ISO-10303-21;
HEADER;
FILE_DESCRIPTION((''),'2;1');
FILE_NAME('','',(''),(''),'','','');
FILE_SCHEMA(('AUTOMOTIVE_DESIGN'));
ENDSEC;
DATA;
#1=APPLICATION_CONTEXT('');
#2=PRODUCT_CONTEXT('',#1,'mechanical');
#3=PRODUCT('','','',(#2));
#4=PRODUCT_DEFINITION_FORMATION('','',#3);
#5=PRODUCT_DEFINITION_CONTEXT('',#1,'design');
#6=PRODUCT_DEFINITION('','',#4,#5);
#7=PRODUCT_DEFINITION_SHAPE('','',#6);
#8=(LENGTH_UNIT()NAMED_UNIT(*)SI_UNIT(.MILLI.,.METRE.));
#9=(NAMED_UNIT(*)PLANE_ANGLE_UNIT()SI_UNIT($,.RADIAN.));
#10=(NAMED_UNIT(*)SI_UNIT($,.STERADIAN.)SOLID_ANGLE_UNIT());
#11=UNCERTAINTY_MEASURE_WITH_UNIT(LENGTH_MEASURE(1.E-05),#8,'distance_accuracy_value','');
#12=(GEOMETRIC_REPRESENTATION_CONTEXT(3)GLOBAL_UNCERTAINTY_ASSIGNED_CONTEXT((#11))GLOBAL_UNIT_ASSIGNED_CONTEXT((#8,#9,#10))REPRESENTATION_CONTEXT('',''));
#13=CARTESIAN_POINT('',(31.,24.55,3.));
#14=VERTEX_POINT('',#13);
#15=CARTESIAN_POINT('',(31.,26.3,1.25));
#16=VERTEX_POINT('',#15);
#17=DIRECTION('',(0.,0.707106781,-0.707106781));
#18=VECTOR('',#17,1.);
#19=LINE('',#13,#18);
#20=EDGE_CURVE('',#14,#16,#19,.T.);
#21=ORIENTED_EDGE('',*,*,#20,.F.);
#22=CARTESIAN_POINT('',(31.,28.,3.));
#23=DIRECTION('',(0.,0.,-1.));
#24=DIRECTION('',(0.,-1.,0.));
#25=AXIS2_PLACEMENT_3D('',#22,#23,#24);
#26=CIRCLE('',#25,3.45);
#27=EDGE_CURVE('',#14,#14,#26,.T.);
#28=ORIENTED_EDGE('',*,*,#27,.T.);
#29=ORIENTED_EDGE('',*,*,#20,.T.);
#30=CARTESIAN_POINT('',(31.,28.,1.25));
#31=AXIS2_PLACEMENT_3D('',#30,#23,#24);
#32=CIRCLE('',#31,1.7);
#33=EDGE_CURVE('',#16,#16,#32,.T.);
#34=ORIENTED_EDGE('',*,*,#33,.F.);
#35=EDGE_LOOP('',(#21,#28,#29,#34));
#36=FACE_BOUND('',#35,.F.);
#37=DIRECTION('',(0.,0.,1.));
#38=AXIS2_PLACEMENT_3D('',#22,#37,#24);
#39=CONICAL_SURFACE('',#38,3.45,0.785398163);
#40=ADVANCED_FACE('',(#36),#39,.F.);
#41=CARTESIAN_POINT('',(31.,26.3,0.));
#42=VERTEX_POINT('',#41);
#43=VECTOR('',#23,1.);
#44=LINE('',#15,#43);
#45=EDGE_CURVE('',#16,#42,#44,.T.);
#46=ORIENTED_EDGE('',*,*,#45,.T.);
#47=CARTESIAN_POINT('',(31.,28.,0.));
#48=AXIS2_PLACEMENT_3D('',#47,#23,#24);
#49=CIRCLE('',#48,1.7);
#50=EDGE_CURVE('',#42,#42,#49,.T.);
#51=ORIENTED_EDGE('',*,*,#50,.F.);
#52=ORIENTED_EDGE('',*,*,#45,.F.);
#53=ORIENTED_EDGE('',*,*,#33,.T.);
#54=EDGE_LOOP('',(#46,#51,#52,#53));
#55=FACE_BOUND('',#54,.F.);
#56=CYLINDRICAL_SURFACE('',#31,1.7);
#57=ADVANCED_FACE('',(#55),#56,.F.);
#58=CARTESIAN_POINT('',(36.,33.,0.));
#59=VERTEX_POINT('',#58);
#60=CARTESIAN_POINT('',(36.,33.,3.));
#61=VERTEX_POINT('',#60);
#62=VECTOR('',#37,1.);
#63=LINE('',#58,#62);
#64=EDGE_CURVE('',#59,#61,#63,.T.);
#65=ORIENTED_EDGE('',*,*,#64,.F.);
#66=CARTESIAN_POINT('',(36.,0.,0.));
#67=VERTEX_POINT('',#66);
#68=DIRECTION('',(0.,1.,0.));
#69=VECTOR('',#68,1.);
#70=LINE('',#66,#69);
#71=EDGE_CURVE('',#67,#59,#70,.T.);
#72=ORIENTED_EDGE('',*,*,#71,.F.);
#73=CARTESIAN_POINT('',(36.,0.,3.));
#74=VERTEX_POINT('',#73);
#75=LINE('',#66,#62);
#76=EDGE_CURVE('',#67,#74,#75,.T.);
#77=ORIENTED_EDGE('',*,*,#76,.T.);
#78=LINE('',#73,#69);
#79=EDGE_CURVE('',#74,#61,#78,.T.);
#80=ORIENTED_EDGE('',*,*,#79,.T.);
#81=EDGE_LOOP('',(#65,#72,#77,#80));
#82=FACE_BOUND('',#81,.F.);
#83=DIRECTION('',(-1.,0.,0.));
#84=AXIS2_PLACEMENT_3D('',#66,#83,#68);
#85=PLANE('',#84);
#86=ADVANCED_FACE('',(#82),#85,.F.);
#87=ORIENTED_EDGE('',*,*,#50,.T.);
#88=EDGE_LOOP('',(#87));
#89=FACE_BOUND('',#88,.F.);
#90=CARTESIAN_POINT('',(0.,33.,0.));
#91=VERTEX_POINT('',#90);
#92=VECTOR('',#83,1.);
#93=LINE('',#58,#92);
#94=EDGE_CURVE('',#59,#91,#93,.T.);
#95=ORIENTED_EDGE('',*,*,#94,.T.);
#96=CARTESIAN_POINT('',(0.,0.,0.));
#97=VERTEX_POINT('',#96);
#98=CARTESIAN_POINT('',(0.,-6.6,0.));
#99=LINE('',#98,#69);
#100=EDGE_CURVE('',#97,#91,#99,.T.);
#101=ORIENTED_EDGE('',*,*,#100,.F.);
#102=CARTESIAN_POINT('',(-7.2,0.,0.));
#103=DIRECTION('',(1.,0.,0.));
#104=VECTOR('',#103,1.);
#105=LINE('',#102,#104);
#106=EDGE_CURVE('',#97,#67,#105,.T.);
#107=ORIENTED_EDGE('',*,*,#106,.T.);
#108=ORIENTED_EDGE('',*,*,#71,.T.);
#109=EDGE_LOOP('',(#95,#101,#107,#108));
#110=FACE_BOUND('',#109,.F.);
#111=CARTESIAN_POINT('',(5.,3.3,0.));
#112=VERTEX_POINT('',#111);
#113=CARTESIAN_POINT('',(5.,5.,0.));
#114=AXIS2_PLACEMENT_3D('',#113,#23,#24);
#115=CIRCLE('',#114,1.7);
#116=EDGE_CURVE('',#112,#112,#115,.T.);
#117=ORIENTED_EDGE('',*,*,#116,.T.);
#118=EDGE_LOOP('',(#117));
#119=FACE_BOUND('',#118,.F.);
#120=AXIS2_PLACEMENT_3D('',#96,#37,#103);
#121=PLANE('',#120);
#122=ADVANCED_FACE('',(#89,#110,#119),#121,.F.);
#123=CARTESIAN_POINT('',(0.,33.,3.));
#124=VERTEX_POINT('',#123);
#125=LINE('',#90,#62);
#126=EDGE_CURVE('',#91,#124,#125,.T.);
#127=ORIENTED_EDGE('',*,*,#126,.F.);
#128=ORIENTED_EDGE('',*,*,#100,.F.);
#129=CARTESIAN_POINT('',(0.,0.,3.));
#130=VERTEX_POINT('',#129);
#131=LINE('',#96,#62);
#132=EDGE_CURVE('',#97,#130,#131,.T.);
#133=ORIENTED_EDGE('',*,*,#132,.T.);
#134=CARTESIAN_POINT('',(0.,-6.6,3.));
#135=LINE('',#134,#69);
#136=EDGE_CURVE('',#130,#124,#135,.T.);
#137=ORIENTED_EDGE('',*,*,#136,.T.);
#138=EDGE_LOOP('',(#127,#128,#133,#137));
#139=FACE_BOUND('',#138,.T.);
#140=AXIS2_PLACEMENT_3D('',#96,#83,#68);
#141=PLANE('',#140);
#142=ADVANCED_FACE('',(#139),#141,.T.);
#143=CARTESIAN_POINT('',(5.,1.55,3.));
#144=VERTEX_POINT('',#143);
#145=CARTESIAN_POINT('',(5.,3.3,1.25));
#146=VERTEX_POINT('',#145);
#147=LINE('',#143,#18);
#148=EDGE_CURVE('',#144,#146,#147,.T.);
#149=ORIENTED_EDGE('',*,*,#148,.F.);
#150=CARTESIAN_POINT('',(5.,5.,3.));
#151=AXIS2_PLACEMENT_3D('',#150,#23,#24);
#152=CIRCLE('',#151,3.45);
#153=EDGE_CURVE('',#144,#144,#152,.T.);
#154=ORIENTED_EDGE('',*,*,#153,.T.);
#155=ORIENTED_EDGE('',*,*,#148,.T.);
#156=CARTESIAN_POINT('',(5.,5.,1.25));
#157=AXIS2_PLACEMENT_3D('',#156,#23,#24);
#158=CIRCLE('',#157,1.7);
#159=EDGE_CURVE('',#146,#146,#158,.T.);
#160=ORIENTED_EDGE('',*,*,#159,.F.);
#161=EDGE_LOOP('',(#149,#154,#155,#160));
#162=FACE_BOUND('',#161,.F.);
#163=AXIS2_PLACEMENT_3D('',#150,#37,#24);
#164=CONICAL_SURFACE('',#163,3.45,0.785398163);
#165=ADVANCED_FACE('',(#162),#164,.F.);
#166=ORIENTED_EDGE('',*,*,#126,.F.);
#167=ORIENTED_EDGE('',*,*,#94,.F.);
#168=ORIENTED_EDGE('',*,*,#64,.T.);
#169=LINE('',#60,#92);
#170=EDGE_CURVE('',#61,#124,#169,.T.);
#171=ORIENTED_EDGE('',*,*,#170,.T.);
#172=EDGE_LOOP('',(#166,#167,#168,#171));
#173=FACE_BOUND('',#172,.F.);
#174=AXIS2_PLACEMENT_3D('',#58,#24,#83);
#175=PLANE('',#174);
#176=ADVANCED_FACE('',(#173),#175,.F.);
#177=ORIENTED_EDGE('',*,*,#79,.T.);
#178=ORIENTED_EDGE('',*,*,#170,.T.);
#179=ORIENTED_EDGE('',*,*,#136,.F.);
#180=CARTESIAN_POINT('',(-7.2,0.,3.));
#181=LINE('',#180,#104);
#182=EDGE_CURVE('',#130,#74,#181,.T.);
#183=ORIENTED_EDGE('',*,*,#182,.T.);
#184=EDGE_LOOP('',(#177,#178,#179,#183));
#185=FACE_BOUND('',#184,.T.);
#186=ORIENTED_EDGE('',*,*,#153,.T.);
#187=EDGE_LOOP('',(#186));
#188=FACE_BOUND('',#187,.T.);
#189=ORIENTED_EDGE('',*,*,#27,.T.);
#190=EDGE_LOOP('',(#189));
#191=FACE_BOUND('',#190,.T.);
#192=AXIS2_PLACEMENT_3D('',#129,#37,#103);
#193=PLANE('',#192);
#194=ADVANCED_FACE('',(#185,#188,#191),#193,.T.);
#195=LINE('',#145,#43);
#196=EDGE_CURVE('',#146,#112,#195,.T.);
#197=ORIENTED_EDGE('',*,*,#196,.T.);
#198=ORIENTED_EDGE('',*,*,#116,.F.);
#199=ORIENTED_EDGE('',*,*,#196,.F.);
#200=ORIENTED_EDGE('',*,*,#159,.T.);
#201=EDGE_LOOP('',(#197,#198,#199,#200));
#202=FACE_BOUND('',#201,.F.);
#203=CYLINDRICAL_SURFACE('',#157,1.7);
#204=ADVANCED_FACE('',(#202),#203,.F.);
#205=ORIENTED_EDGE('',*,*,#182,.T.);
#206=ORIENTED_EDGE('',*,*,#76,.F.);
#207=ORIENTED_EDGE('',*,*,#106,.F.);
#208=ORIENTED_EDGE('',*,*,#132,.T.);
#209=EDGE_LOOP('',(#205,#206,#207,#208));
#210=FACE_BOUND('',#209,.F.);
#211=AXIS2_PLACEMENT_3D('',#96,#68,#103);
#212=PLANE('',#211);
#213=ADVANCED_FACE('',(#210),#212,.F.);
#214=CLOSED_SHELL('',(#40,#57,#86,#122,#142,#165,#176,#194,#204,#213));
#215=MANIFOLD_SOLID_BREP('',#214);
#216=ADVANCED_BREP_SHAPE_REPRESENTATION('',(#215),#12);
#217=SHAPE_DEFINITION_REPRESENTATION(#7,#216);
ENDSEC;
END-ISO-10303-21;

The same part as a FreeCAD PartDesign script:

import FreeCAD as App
import Part
import Sketcher

doc = App.newDocument("Part")
body = doc.addObject("PartDesign::Body", "Body")

# Sketch on XY plane
sketch1 = body.newObject("Sketcher::SketchObject", "Sketch")
sketch1.AttachmentSupport = (doc.getObject("XY_Plane"), [""])
sketch1.MapMode = "FlatFace"
sketch1.addGeometry([
    Part.LineSegment(App.Vector(0, 33, 0), App.Vector(0, 0, 0)),
    Part.LineSegment(App.Vector(0, 0, 0), App.Vector(36, 0, 0)),
    Part.LineSegment(App.Vector(36, 0, 0), App.Vector(36, 33, 0)),
    Part.LineSegment(App.Vector(36, 33, 0), App.Vector(0, 33, 0)),
], False)
sketch1.addConstraint([
    Sketcher.Constraint("Coincident", 0, 2, 1, 1),
    Sketcher.Constraint("Coincident", 1, 2, 2, 1),
    Sketcher.Constraint("Coincident", 2, 2, 3, 1),
    Sketcher.Constraint("Coincident", 3, 2, 0, 1),
    Sketcher.Constraint("Vertical", 0),
    Sketcher.Constraint("Horizontal", 1),
    Sketcher.Constraint("Vertical", 2),
    Sketcher.Constraint("Horizontal", 3),
    Sketcher.Constraint("Coincident", 0, 2, -1, 1),
    Sketcher.Constraint("DistanceX", 1, 1, 1, 2, 36.0),
    Sketcher.Constraint("DistanceY", 0, 2, 0, 1, 33.0),
])
pad1 = body.newObject("PartDesign::Pad", "Pad")
pad1.Profile = sketch1
pad1.Length = 3

# Sketch on XY plane
sketch2 = body.newObject("Sketcher::SketchObject", "Sketch001")
sketch2.AttachmentSupport = (doc.getObject("XY_Plane"), [""])
sketch2.MapMode = "FlatFace"
sketch2.AttachmentOffset = App.Placement(App.Vector(0, 0, 3), App.Rotation())
sketch2.addGeometry([
    Part.Circle(App.Vector(31, 28, 0), App.Vector(0, 0, 1), 1.7),
    Part.Circle(App.Vector(5, 5, 0), App.Vector(0, 0, 1), 1.7),
], False)
sketch2.addConstraint([
    Sketcher.Constraint("Equal", 0, 1),
    Sketcher.Constraint("Diameter", 0, 3.4),
    Sketcher.Constraint("DistanceX", -1, 1, 0, 3, 31.0),
    Sketcher.Constraint("DistanceY", -1, 1, 0, 3, 28.0),
    Sketcher.Constraint("DistanceX", -1, 1, 1, 3, 5.0),
    Sketcher.Constraint("DistanceY", -1, 1, 1, 3, 5.0),
])
doc.recompute()
hole = body.newObject("PartDesign::Hole", "Hole")
hole.Profile = sketch2
hole.ThreadType = "None"
hole.Diameter = 3.4
hole.DepthType = "ThroughAll"
hole.HoleCutType = "Countersink"
hole.HoleCutDiameter = 6.9
hole.HoleCutCountersinkAngle = 90

doc.recompute()
